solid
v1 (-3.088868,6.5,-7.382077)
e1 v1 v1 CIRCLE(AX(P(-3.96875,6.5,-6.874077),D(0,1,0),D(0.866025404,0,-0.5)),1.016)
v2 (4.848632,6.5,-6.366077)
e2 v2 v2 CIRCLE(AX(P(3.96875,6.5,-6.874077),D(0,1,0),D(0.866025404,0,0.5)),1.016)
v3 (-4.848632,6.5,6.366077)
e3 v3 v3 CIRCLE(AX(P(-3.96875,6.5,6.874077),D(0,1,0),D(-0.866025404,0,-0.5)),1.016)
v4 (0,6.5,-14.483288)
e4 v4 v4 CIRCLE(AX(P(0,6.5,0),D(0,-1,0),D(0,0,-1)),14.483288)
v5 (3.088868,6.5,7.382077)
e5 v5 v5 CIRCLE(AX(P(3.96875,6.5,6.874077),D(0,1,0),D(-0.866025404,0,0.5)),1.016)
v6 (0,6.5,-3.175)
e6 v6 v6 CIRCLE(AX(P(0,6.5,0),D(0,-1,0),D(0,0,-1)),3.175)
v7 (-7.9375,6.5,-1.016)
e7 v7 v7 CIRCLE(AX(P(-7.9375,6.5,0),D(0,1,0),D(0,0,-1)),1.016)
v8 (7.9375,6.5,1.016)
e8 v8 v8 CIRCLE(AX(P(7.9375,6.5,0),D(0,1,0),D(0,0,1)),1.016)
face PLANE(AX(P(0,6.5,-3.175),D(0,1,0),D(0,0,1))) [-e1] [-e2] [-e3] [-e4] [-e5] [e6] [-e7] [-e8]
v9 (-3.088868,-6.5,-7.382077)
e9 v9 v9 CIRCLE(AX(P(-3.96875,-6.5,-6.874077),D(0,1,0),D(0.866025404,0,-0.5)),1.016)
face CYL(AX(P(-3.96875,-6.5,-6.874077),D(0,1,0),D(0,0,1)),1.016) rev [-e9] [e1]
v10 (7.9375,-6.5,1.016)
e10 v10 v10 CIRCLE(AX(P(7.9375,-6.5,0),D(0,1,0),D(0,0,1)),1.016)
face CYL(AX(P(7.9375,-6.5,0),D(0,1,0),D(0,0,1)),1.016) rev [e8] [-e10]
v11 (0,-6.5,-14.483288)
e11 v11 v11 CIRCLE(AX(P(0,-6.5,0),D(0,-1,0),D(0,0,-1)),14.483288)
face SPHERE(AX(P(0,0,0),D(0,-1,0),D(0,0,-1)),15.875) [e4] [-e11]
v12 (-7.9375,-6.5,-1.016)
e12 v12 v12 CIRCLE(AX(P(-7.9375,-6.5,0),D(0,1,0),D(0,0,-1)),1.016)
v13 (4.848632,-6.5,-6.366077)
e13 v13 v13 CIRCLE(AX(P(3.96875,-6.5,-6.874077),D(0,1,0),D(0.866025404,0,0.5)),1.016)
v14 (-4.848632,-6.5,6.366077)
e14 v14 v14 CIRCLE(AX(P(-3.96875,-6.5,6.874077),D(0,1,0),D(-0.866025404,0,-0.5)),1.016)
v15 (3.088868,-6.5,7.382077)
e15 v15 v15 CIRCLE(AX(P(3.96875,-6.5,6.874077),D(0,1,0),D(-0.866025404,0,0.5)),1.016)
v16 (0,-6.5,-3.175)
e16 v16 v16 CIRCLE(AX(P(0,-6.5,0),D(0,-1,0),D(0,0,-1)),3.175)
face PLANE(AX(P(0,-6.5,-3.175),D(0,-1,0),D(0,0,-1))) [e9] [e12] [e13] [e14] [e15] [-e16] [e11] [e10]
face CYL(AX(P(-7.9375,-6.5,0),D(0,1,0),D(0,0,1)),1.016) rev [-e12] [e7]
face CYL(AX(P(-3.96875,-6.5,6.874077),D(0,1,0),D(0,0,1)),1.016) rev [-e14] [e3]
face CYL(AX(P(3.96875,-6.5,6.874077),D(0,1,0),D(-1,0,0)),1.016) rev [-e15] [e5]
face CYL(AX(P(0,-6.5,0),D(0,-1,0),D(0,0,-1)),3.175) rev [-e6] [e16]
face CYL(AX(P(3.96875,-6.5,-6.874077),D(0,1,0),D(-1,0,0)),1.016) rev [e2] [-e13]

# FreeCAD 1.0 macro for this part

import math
import FreeCAD as App
import Part
import Sketcher
from FreeCAD import Vector

doc = App.newDocument("Part")
body = doc.addObject("PartDesign::Body", "Body")

sketch1 = doc.addObject("Sketcher::SketchObject", "Sketch")
body.addObject(sketch1)
sketch1.AttachmentSupport = (doc.YZ_Plane, [""])
sketch1.MapMode = "FlatFace"
sketch1.addGeometry(Part.LineSegment(Vector(6, -14, 0), Vector(6, -3, 0)), False)
sketch1.addGeometry(Part.LineSegment(Vector(6, -3, 0), Vector(-6, -3, 0)), False)
sketch1.addGeometry(Part.LineSegment(Vector(-6, -3, 0), Vector(-6, -14, 0)), False)
sketch1.addGeometry(Part.ArcOfCircle(Part.Circle(Vector(0, 0, 0), Vector(0, 0, 1), 16), math.radians(-114), math.radians(-66)), False)
sketch1.addConstraint(Sketcher.Constraint("Coincident", 0, 2, 1, 1))
sketch1.addConstraint(Sketcher.Constraint("Coincident", 1, 2, 2, 1))
sketch1.addConstraint(Sketcher.Constraint("Coincident", 2, 2, 3, 1))
sketch1.addConstraint(Sketcher.Constraint("Coincident", 3, 2, 0, 1))
sketch1.addConstraint(Sketcher.Constraint("Vertical", 0))
sketch1.addConstraint(Sketcher.Constraint("Horizontal", 1))
sketch1.addConstraint(Sketcher.Constraint("Vertical", 2))
sketch1.addConstraint(Sketcher.Constraint("Coincident", 3, 3, -1, 1))
sketch1.addConstraint(Sketcher.Constraint("Horizontal", 2, 2, 3, 2))
sketch1.addConstraint(Sketcher.Constraint("DistanceX", 1, 2, 1, 1, 13.0))
sketch1.addConstraint(Sketcher.Constraint("Radius", 3, 15.875))
sketch1.addConstraint(Sketcher.Constraint("DistanceY", 0, 2, -1, 1, 3.175))
revolution = doc.addObject("PartDesign::Revolution", "Revolution")
body.addObject(revolution)
revolution.Profile = sketch1
revolution.ReferenceAxis = (sketch1, ["H_Axis"])
revolution.Angle = 360

sketch2 = doc.addObject("Sketcher::SketchObject", "Sketch001")
body.addObject(sketch2)
sketch2.AttachmentSupport = (doc.XZ_Plane, [""])
sketch2.MapMode = "FlatFace"
sketch2.addGeometry(Part.Circle(Vector(7.9, 0, 0), Vector(0, 0, 1), 1), False)
sketch2.addConstraint(Sketcher.Constraint("PointOnObject", 0, 3, -1))
sketch2.addConstraint(Sketcher.Constraint("Diameter", 0, 2.032))
sketch2.addConstraint(Sketcher.Constraint("DistanceX", -1, 1, 0, 3, 7.9375))
pocket1 = doc.addObject("PartDesign::Pocket", "Pocket")
body.addObject(pocket1)
pocket1.Profile = sketch2
pocket1.Length = 15
pocket1.Midplane = True
doc.recompute()

polarpattern = doc.addObject("PartDesign::PolarPattern", "PolarPattern")
body.addObject(polarpattern)
polarpattern.Originals = [pocket1]
polarpattern.Axis = (doc.Y_Axis, [""])
polarpattern.Angle = 360
polarpattern.Occurrences = 6
body.Tip = polarpattern

doc.recompute()
